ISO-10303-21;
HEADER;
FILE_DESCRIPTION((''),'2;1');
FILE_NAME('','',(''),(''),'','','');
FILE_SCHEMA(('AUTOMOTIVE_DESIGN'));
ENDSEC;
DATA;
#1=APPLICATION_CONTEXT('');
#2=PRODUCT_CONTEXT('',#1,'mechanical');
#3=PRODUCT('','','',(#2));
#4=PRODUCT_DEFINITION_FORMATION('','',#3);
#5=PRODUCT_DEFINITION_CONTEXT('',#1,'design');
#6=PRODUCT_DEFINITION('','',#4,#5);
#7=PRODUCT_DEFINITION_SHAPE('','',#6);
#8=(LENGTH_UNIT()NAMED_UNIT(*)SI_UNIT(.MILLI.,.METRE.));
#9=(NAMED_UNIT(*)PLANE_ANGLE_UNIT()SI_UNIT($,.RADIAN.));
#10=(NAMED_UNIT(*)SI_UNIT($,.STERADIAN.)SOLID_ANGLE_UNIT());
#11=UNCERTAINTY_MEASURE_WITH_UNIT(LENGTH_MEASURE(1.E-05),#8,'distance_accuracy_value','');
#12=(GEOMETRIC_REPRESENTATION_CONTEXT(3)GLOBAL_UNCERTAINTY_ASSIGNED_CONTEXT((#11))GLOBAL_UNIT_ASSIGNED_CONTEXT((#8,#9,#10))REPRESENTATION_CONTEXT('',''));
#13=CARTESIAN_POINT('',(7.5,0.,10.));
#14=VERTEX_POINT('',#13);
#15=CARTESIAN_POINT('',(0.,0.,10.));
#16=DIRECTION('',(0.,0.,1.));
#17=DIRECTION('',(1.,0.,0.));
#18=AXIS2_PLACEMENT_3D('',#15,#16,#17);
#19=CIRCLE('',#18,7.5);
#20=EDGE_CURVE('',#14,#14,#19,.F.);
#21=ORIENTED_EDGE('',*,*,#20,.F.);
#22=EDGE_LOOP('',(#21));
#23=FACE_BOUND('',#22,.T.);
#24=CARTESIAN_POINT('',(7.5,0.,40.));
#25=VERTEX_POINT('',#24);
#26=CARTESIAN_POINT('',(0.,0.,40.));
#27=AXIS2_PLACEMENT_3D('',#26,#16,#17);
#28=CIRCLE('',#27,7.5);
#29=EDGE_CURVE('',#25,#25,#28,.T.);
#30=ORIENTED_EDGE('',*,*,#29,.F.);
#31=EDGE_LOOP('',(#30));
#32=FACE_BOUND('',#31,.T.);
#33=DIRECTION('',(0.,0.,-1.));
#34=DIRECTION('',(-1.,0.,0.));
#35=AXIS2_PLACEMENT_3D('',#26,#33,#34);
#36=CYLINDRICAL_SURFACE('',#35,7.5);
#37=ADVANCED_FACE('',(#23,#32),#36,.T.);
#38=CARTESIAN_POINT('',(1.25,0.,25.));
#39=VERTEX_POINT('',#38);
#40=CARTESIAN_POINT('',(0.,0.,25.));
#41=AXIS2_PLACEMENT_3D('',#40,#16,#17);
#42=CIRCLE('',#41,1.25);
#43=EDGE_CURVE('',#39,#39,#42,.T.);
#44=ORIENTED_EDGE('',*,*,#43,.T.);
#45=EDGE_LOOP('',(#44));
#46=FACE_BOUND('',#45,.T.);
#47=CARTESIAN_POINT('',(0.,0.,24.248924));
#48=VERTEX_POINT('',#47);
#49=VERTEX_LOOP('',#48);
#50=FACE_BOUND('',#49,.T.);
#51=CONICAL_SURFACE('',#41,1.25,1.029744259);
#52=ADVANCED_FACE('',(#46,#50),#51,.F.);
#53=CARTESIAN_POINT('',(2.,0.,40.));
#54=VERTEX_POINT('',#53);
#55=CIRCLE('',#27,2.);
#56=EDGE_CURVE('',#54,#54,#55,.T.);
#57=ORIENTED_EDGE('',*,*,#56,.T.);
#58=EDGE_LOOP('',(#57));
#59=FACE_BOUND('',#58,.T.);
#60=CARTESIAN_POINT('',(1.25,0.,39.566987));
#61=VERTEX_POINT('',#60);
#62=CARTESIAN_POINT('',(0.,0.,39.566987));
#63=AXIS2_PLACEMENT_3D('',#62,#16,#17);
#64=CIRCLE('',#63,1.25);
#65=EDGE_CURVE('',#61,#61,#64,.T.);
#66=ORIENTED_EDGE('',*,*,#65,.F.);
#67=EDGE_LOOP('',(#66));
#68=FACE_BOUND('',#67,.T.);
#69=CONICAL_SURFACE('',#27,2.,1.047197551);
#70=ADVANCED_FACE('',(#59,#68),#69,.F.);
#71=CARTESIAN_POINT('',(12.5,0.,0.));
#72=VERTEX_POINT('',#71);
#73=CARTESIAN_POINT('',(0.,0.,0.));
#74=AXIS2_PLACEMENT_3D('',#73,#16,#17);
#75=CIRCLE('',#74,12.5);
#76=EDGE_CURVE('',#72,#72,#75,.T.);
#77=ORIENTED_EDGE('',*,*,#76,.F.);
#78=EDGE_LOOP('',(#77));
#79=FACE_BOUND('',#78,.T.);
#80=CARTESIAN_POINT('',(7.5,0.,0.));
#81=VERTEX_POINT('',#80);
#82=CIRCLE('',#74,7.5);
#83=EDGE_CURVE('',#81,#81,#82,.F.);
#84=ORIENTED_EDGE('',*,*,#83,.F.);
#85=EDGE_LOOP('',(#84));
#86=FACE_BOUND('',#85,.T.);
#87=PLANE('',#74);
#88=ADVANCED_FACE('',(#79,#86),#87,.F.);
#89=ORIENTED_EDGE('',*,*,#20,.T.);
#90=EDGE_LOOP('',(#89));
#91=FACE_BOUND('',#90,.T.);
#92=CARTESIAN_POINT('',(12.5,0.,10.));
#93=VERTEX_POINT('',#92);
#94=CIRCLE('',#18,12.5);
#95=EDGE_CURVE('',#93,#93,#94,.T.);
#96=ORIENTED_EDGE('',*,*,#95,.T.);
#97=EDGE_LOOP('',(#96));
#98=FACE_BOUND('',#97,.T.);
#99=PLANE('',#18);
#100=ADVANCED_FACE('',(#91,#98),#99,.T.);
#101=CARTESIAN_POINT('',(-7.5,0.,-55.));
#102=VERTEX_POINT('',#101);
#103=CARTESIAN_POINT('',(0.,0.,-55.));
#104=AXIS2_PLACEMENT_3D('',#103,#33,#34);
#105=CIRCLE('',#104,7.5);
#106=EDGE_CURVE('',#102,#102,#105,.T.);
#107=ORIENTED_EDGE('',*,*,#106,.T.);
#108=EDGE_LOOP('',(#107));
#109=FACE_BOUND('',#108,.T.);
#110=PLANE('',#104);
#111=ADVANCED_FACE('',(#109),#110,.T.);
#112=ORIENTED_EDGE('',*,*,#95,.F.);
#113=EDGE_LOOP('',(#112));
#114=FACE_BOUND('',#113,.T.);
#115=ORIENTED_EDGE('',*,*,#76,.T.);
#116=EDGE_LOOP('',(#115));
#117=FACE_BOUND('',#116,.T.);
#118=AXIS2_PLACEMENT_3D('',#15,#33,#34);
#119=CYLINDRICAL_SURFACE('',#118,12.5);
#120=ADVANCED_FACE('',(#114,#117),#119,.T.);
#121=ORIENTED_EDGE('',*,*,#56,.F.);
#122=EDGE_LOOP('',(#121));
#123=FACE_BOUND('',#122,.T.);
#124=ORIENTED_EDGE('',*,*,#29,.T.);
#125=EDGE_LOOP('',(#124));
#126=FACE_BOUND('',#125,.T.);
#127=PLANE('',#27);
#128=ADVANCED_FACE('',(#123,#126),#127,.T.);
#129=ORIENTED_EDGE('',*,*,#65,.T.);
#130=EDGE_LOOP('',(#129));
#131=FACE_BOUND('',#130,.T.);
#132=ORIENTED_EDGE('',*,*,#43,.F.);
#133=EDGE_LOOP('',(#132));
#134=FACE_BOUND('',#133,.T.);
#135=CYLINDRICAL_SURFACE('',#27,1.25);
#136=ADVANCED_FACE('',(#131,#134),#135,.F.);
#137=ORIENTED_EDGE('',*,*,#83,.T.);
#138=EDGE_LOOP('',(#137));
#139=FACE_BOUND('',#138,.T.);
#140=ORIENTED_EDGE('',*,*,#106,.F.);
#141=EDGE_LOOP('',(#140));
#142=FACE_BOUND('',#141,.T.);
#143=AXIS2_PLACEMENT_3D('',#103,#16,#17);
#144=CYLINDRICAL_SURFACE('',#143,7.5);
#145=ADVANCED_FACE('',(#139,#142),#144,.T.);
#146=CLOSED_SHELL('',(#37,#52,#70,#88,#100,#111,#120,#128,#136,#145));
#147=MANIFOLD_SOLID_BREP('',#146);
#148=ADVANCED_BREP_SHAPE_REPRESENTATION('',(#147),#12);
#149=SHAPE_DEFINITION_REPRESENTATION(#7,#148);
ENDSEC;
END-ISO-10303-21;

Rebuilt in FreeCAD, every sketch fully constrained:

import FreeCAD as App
import Part
import Sketcher
Q = App.Units.Quantity

doc = App.newDocument("Part")
body = doc.addObject("PartDesign::Body", "Body")

# Sketch on XY plane
sketch1 = body.newObject("Sketcher::SketchObject", "Sketch")
sketch1.AttachmentSupport = (doc.getObject("XY_Plane"), [""])
sketch1.MapMode = "FlatFace"
sketch1.addGeometry(Part.Circle(App.Vector(0, 0, 0), App.Vector(0, 0, 1), 12.5), False)
sketch1.addConstraint([
    Sketcher.Constraint("Coincident", 0, 3, -1, 1),
    Sketcher.Constraint("Diameter", 0, Q("25 mm")),
])
pad1 = body.newObject("PartDesign::Pad", "Pad")
pad1.Profile = sketch1
pad1.Length = 10

# Sketch on XY plane
sketch2 = body.newObject("Sketcher::SketchObject", "Sketch001")
sketch2.AttachmentSupport = (doc.getObject("XY_Plane"), [""])
sketch2.MapMode = "FlatFace"
sketch2.addGeometry(Part.Circle(App.Vector(0, 0, 0), App.Vector(0, 0, 1), 7.5), False)
sketch2.addConstraint([
    Sketcher.Constraint("Coincident", 0, 3, -1, 1),
    Sketcher.Constraint("Diameter", 0, Q("15 mm")),
])
pad2 = body.newObject("PartDesign::Pad", "Pad001")
pad2.Profile = sketch2
pad2.Length = 40

# Sketch on XY plane
sketch3 = body.newObject("Sketcher::SketchObject", "Sketch002")
sketch3.AttachmentSupport = (doc.getObject("XY_Plane"), [""])
sketch3.MapMode = "FlatFace"
sketch3.AttachmentOffset = App.Placement(App.Vector(0, 0, -55), App.Rotation())
sketch3.addGeometry(Part.Circle(App.Vector(0, 0, 0), App.Vector(0, 0, 1), 7.5), False)
sketch3.addConstraint([
    Sketcher.Constraint("Coincident", 0, 3, -1, 1),
    Sketcher.Constraint("Diameter", 0, Q("15 mm")),
])
pad3 = body.newObject("PartDesign::Pad", "Pad002")
pad3.Profile = sketch3
pad3.Length = 55

# Sketch on XY plane
sketch4 = body.newObject("Sketcher::SketchObject", "Sketch003")
sketch4.AttachmentSupport = (doc.getObject("XY_Plane"), [""])
sketch4.MapMode = "FlatFace"
sketch4.AttachmentOffset = App.Placement(App.Vector(0, 0, 40), App.Rotation())
sketch4.addGeometry(Part.Circle(App.Vector(0, 0, 0), App.Vector(0, 0, 1), 1.25), False)
sketch4.addConstraint([
    Sketcher.Constraint("Coincident", 0, 3, -1, 1),
    Sketcher.Constraint("Diameter", 0, Q("2.5 mm")),
])
doc.recompute()
hole = body.newObject("PartDesign::Hole", "Hole")
hole.Profile = sketch4
hole.ThreadType = "None"
hole.Diameter = 2.5
hole.DepthType = "Dimension"
hole.Depth = 15
hole.DrillPoint = "Angled"
hole.DrillPointAngle = 118
hole.HoleCutType = "Countersink"
hole.HoleCutDiameter = 4
hole.HoleCutCountersinkAngle = 120

doc.recompute()
